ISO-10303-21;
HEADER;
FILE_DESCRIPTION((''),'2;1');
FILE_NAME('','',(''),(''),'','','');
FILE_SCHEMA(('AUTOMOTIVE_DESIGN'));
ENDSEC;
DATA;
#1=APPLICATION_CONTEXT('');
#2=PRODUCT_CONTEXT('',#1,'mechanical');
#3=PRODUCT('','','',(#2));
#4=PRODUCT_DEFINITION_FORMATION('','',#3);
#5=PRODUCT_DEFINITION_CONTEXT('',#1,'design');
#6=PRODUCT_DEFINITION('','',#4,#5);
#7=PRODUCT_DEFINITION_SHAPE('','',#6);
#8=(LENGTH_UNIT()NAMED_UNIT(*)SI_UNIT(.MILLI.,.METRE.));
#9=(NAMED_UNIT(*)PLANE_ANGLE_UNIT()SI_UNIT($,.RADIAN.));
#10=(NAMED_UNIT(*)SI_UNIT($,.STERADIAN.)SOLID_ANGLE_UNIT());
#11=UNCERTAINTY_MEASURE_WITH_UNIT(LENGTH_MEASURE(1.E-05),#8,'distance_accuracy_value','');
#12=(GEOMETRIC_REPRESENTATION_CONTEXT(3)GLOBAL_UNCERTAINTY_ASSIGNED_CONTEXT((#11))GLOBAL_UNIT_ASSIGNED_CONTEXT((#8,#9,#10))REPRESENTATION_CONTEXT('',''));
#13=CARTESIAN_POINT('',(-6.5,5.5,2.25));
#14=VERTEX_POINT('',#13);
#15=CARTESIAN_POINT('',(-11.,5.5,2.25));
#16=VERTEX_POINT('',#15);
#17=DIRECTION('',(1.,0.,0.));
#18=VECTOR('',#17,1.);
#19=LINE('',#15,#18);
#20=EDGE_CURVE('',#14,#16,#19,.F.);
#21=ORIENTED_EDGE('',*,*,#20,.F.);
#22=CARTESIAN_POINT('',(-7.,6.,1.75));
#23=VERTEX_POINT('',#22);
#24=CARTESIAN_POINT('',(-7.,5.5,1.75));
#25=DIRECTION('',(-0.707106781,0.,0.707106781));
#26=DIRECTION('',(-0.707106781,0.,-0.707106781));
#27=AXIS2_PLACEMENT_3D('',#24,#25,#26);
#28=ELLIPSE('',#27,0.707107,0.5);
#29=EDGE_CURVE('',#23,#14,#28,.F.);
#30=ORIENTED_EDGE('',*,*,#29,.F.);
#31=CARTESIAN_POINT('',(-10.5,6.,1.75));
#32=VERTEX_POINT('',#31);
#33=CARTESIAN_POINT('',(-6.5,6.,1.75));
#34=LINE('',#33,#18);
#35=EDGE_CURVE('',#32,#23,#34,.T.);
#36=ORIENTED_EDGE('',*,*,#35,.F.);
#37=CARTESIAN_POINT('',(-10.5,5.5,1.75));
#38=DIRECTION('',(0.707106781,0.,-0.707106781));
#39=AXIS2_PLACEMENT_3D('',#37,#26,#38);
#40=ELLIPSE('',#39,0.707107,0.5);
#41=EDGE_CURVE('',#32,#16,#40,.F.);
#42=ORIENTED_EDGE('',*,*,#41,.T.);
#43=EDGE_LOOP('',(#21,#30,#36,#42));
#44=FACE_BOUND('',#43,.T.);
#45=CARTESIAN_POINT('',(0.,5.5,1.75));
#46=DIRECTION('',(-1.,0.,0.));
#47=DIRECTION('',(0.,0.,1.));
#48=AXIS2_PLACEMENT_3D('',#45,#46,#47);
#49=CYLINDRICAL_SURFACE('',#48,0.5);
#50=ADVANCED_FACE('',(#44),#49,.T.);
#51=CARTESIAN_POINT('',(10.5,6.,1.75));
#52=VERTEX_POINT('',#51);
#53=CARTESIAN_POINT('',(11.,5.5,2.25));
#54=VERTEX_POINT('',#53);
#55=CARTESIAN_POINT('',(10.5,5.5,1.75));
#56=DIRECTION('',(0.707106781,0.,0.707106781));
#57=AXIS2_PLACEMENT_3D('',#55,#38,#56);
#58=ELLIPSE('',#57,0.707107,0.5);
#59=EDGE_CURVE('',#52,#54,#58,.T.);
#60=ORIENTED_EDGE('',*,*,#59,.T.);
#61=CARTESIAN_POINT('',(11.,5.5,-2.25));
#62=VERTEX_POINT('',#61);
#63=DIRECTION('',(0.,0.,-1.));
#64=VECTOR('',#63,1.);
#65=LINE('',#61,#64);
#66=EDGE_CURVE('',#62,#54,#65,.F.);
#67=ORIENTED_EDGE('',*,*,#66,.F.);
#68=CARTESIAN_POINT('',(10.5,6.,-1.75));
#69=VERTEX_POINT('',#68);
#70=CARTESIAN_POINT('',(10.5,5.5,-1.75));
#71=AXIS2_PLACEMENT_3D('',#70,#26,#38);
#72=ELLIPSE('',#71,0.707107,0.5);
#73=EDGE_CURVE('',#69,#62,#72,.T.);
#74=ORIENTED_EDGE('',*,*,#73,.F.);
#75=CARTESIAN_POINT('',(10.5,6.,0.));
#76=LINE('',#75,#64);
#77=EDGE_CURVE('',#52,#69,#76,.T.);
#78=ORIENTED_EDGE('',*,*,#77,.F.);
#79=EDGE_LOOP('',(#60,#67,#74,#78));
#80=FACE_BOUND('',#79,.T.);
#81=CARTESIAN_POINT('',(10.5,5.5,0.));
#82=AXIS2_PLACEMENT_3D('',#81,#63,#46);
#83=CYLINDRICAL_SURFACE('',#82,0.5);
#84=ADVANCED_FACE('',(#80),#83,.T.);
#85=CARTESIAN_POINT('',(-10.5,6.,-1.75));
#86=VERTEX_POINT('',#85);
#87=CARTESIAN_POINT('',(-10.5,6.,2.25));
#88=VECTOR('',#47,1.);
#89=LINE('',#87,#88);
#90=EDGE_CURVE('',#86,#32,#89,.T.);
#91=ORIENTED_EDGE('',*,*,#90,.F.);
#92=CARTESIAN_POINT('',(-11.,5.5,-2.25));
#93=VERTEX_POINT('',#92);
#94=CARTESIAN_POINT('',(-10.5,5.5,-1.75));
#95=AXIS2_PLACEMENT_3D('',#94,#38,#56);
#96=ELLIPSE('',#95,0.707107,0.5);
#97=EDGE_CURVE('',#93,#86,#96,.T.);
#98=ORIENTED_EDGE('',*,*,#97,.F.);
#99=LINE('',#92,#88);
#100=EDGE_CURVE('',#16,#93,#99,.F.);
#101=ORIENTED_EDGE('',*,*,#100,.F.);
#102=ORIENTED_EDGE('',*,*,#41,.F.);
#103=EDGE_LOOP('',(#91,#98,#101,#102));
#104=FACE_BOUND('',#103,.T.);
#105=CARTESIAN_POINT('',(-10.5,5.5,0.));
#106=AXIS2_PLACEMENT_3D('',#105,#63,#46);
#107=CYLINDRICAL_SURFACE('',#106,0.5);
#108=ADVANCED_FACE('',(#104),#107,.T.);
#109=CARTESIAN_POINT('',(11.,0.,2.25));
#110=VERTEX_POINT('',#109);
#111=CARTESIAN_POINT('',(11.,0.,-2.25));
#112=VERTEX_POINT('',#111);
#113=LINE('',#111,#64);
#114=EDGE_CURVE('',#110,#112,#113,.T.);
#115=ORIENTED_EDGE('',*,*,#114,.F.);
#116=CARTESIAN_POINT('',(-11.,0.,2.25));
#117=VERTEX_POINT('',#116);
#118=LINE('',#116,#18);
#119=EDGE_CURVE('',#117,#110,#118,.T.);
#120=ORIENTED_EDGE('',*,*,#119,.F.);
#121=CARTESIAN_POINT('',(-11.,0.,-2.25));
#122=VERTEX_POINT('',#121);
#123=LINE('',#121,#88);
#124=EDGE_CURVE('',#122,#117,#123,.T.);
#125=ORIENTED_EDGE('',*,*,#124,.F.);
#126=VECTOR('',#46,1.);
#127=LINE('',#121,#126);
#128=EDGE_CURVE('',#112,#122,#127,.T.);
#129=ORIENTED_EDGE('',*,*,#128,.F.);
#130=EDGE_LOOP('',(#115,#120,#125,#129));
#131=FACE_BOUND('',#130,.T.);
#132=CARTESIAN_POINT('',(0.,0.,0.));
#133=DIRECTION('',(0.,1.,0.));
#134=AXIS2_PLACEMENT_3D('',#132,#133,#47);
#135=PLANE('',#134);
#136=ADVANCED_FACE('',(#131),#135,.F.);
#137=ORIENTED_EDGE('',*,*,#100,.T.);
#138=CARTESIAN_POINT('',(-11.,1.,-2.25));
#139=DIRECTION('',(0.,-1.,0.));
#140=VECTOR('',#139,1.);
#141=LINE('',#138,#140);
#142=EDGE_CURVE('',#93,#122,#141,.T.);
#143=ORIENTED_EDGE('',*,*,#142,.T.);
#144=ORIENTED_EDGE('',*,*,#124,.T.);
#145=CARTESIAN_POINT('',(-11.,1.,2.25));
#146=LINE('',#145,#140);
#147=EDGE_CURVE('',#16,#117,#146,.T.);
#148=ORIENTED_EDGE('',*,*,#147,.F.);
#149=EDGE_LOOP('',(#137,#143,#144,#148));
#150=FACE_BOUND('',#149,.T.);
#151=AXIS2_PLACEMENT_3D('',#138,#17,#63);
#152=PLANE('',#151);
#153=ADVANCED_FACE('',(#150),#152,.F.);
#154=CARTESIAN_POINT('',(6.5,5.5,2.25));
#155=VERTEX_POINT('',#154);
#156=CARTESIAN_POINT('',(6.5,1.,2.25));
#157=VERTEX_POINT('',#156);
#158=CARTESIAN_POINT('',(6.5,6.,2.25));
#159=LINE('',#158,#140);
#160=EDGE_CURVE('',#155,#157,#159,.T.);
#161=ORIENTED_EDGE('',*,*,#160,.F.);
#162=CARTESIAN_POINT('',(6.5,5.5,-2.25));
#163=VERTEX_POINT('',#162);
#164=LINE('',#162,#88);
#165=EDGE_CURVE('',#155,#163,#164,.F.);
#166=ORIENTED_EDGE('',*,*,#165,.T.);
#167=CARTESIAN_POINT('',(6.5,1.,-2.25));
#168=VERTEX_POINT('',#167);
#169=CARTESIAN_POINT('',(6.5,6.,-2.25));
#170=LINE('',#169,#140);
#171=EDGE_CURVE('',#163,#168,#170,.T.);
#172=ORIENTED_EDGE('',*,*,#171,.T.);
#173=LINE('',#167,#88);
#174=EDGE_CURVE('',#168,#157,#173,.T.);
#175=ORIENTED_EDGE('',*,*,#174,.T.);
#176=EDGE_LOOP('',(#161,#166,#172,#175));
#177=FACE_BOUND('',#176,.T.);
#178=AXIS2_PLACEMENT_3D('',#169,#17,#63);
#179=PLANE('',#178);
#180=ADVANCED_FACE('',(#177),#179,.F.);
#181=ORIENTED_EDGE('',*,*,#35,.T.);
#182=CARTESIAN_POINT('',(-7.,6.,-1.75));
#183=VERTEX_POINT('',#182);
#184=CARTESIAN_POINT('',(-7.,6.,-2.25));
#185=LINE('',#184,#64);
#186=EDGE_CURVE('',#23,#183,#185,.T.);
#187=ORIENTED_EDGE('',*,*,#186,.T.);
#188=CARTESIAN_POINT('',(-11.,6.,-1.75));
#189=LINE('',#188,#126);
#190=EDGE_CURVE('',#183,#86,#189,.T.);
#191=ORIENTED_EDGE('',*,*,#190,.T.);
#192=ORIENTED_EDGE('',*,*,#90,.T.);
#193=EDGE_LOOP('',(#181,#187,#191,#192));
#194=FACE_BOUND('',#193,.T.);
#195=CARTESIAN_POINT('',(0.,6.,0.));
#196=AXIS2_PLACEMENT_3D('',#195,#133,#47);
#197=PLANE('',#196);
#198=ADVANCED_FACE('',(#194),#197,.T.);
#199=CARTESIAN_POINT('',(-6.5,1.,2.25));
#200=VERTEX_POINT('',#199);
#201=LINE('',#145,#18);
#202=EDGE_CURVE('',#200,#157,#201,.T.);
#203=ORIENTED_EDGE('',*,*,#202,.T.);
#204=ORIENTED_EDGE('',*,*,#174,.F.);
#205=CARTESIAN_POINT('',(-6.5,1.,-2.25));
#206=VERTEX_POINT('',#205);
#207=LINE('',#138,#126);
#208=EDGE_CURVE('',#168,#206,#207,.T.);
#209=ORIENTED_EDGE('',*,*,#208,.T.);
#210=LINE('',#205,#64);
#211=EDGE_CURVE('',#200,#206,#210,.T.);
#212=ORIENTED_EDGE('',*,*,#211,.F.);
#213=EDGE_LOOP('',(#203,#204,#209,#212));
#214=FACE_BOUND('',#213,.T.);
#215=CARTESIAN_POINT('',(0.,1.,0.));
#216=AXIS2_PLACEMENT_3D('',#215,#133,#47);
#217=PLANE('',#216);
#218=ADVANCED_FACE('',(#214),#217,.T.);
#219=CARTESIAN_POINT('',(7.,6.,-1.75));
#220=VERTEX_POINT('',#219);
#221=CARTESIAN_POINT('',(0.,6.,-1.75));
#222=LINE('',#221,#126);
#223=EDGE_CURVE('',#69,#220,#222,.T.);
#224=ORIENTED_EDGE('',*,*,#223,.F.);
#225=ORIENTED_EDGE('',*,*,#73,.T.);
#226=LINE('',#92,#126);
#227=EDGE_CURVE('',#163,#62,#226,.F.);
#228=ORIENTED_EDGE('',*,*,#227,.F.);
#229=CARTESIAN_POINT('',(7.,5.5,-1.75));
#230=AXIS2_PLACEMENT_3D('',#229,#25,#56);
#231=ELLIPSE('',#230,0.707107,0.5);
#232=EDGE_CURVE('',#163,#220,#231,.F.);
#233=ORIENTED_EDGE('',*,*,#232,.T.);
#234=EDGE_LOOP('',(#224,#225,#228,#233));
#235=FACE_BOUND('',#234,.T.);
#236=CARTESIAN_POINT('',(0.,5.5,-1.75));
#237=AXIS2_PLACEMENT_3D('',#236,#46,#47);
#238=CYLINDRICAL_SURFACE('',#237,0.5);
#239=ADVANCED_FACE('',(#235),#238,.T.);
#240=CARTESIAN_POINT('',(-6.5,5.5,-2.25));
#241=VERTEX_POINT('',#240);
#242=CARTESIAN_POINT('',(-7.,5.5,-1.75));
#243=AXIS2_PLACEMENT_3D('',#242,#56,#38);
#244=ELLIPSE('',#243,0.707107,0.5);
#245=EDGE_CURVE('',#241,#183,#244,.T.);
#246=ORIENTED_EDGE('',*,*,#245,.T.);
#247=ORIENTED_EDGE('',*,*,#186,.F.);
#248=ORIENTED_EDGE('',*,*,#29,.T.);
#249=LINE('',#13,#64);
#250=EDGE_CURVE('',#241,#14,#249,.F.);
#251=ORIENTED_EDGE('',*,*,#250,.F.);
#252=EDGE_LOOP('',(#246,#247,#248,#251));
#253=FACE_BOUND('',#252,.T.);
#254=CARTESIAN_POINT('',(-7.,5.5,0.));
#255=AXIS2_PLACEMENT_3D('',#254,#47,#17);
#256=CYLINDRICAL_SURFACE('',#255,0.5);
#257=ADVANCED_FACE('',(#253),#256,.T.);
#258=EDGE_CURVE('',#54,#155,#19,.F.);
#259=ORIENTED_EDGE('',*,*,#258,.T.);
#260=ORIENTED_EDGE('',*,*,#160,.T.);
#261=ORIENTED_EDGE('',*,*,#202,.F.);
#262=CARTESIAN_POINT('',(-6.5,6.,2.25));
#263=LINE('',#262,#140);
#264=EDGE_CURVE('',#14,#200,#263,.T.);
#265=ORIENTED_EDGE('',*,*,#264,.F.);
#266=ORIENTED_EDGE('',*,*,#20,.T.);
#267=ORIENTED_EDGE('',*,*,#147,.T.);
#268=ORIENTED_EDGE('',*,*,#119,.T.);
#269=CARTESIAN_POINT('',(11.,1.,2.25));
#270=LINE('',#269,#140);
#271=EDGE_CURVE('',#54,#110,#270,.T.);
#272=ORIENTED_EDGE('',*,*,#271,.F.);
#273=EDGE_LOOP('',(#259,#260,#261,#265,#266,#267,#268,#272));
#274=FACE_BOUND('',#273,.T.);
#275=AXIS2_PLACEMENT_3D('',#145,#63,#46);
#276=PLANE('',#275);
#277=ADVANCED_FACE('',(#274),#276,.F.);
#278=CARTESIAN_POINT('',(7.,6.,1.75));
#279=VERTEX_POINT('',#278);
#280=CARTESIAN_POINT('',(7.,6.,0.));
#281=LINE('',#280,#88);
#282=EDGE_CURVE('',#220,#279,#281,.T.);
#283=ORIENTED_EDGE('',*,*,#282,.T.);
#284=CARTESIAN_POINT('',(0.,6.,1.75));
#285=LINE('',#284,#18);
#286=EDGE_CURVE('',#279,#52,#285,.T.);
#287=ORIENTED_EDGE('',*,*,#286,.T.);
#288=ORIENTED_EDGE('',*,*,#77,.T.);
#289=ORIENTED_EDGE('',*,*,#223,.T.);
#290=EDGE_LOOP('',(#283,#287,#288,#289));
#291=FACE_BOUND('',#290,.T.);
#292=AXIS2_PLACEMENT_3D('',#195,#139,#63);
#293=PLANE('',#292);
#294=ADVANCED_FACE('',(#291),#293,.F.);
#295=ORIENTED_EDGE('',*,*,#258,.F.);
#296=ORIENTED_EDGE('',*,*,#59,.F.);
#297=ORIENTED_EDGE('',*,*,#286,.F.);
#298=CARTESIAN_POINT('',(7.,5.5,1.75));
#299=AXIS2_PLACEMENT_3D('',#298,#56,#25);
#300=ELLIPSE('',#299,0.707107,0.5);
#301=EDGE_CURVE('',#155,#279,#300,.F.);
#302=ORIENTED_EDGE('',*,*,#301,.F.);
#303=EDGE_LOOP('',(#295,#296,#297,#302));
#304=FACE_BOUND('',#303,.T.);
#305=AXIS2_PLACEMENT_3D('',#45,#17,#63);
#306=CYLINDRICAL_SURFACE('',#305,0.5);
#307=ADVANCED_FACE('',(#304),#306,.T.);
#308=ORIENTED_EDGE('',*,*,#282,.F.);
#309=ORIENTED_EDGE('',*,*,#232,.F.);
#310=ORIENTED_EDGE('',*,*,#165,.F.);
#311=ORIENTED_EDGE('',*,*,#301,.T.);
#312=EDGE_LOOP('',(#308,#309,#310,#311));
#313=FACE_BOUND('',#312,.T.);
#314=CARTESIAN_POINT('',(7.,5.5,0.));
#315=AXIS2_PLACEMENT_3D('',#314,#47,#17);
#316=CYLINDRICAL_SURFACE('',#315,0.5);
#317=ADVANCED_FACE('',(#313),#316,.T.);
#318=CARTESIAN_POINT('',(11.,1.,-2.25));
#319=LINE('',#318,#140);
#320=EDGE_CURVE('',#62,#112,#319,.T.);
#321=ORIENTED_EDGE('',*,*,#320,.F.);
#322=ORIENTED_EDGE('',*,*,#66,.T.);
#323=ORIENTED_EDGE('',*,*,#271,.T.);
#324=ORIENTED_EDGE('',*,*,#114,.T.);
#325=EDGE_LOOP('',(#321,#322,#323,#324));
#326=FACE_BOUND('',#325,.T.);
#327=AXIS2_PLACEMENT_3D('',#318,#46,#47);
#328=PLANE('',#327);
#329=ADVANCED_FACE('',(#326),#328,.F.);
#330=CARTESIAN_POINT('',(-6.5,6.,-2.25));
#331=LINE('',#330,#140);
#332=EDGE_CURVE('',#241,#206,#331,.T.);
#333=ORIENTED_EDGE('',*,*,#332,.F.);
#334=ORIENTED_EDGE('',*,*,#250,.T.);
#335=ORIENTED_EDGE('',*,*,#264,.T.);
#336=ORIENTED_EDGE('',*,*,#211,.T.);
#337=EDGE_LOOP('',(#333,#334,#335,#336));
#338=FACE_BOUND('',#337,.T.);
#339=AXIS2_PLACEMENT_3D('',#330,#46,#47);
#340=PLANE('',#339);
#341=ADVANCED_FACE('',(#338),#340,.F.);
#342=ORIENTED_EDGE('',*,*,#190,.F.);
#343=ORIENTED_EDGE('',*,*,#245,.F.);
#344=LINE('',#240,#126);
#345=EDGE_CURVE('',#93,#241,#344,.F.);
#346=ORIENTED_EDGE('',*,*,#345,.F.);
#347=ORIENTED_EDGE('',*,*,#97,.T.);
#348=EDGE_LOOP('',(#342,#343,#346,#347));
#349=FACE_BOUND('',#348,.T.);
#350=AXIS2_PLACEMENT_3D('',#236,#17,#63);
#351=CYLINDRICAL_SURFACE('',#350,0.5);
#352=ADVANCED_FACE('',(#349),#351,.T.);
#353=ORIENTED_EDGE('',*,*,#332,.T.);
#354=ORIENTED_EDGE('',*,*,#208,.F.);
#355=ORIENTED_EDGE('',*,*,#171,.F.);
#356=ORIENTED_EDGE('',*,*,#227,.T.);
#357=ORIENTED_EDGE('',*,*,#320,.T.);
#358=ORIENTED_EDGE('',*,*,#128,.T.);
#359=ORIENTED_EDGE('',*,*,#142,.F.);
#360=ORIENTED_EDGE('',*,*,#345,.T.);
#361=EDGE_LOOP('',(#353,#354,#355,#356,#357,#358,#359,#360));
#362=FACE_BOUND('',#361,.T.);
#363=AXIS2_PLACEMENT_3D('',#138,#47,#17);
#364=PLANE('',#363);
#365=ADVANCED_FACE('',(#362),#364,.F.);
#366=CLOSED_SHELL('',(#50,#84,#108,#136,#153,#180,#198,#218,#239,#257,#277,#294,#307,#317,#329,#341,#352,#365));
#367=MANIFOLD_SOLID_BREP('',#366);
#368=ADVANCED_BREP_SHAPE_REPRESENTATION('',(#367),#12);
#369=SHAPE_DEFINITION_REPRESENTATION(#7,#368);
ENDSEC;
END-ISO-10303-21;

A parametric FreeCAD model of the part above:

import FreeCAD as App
import Part
import Sketcher
from FreeCAD import Vector
Q = App.Units.Quantity


def edges_at(feature, points):
    """Names of the edges that pass closest to the given points."""
    edges = feature.Shape.Edges
    near = lambda p: min(range(len(edges)), key=lambda i: edges[i].distToShape(Part.Vertex(*p))[0])
    return sorted({f"Edge{near(p) + 1}" for p in points})


def add_polygon(sketch, points):
    """Adds a closed chain of lines whose ends are joined by coincident constraints."""
    first, n = sketch.GeometryCount, len(points)
    for a, b in zip(points, points[1:] + points[:1]):
        sketch.addGeometry(Part.LineSegment(App.Vector(*a, 0), App.Vector(*b, 0)), False)
    for i in range(n):
        sketch.addConstraint(Sketcher.Constraint("Coincident", first + i, 2, first + (i + 1) % n, 1))

doc = App.newDocument("Part")
body = doc.addObject("PartDesign::Body", "Body")

sketch1 = doc.addObject("Sketcher::SketchObject", "Sketch")
body.addObject(sketch1)
sketch1.AttachmentSupport = (doc.XZ_Plane, [""])
sketch1.MapMode = "FlatFace"
add_polygon(sketch1, [(-11, -2.2), (-11, 2.2), (11, 2.2), (11, -2.2)])
sketch1.addConstraint(Sketcher.Constraint("Vertical", 0))
sketch1.addConstraint(Sketcher.Constraint("Horizontal", 1))
sketch1.addConstraint(Sketcher.Constraint("Vertical", 2))
sketch1.addConstraint(Sketcher.Constraint("Horizontal", 3))
sketch1.addConstraint(Sketcher.Constraint("Symmetric", 0, 2, 2, 2, -1, 1))
sketch1.addConstraint(Sketcher.Constraint("DistanceX", 1, 1, 1, 2, Q("22 mm")))
sketch1.addConstraint(Sketcher.Constraint("DistanceY", 0, 1, 0, 2, Q("4.5 mm")))
pad1 = doc.addObject("PartDesign::Pad", "Pad")
body.addObject(pad1)
pad1.Profile = sketch1
pad1.Length = 1
pad1.Reversed = True

sketch2 = doc.addObject("Sketcher::SketchObject", "Sketch001")
body.addObject(sketch2)
sketch2.AttachmentSupport = (doc.XZ_Plane, [""])
sketch2.MapMode = "FlatFace"
sketch2.AttachmentOffset = App.Placement(Vector(0, 0, -1), App.Rotation())
add_polygon(sketch2, [(-11, -2.2), (-11, 2.2), (-6.5, 2.2), (-6.5, -2.2)])
add_polygon(sketch2, [(6.5, -2.2), (6.5, 2.2), (11, 2.2), (11, -2.2)])
sketch2.addConstraint(Sketcher.Constraint("Vertical", 0))
sketch2.addConstraint(Sketcher.Constraint("Horizontal", 1))
sketch2.addConstraint(Sketcher.Constraint("Vertical", 2))
sketch2.addConstraint(Sketcher.Constraint("Horizontal", 3))
sketch2.addConstraint(Sketcher.Constraint("Vertical", 4))
sketch2.addConstraint(Sketcher.Constraint("Horizontal", 5))
sketch2.addConstraint(Sketcher.Constraint("Vertical", 6))
sketch2.addConstraint(Sketcher.Constraint("Horizontal", 7))
sketch2.addConstraint(Sketcher.Constraint("Symmetric", 2, 2, 4, 2, -1, 1))
sketch2.addConstraint(Sketcher.Constraint("Symmetric", 0, 2, 6, 2, -1, 1))
sketch2.addConstraint(Sketcher.Constraint("Horizontal", 1, 2, 4, 2))
sketch2.addConstraint(Sketcher.Constraint("Equal", 7, 0))
sketch2.addConstraint(Sketcher.Constraint("DistanceX", 1, 1, 1, 2, Q("4.5 mm")))
sketch2.addConstraint(Sketcher.Constraint("DistanceX", 0, 2, -1, 1, Q("11 mm")))
pad2 = doc.addObject("PartDesign::Pad", "Pad001")
body.addObject(pad2)
pad2.Profile = sketch2
pad2.Length = 5
pad2.Reversed = True
doc.recompute()

fillet = doc.addObject("PartDesign::Fillet", "Fillet")
body.addObject(fillet)
fillet.Base = (pad2, edges_at(pad2, [
    (8.75, 6, -2.25),
    (11, 6, 0),
    (8.75, 6, 2.25),
    (6.5, 6, 0),
    (-6.5, 6, 0),
    (-8.75, 6, 2.25),
    (-11, 6, 0),
    (-8.75, 6, -2.25),
]))
fillet.Radius = 0.5

doc.recompute()
